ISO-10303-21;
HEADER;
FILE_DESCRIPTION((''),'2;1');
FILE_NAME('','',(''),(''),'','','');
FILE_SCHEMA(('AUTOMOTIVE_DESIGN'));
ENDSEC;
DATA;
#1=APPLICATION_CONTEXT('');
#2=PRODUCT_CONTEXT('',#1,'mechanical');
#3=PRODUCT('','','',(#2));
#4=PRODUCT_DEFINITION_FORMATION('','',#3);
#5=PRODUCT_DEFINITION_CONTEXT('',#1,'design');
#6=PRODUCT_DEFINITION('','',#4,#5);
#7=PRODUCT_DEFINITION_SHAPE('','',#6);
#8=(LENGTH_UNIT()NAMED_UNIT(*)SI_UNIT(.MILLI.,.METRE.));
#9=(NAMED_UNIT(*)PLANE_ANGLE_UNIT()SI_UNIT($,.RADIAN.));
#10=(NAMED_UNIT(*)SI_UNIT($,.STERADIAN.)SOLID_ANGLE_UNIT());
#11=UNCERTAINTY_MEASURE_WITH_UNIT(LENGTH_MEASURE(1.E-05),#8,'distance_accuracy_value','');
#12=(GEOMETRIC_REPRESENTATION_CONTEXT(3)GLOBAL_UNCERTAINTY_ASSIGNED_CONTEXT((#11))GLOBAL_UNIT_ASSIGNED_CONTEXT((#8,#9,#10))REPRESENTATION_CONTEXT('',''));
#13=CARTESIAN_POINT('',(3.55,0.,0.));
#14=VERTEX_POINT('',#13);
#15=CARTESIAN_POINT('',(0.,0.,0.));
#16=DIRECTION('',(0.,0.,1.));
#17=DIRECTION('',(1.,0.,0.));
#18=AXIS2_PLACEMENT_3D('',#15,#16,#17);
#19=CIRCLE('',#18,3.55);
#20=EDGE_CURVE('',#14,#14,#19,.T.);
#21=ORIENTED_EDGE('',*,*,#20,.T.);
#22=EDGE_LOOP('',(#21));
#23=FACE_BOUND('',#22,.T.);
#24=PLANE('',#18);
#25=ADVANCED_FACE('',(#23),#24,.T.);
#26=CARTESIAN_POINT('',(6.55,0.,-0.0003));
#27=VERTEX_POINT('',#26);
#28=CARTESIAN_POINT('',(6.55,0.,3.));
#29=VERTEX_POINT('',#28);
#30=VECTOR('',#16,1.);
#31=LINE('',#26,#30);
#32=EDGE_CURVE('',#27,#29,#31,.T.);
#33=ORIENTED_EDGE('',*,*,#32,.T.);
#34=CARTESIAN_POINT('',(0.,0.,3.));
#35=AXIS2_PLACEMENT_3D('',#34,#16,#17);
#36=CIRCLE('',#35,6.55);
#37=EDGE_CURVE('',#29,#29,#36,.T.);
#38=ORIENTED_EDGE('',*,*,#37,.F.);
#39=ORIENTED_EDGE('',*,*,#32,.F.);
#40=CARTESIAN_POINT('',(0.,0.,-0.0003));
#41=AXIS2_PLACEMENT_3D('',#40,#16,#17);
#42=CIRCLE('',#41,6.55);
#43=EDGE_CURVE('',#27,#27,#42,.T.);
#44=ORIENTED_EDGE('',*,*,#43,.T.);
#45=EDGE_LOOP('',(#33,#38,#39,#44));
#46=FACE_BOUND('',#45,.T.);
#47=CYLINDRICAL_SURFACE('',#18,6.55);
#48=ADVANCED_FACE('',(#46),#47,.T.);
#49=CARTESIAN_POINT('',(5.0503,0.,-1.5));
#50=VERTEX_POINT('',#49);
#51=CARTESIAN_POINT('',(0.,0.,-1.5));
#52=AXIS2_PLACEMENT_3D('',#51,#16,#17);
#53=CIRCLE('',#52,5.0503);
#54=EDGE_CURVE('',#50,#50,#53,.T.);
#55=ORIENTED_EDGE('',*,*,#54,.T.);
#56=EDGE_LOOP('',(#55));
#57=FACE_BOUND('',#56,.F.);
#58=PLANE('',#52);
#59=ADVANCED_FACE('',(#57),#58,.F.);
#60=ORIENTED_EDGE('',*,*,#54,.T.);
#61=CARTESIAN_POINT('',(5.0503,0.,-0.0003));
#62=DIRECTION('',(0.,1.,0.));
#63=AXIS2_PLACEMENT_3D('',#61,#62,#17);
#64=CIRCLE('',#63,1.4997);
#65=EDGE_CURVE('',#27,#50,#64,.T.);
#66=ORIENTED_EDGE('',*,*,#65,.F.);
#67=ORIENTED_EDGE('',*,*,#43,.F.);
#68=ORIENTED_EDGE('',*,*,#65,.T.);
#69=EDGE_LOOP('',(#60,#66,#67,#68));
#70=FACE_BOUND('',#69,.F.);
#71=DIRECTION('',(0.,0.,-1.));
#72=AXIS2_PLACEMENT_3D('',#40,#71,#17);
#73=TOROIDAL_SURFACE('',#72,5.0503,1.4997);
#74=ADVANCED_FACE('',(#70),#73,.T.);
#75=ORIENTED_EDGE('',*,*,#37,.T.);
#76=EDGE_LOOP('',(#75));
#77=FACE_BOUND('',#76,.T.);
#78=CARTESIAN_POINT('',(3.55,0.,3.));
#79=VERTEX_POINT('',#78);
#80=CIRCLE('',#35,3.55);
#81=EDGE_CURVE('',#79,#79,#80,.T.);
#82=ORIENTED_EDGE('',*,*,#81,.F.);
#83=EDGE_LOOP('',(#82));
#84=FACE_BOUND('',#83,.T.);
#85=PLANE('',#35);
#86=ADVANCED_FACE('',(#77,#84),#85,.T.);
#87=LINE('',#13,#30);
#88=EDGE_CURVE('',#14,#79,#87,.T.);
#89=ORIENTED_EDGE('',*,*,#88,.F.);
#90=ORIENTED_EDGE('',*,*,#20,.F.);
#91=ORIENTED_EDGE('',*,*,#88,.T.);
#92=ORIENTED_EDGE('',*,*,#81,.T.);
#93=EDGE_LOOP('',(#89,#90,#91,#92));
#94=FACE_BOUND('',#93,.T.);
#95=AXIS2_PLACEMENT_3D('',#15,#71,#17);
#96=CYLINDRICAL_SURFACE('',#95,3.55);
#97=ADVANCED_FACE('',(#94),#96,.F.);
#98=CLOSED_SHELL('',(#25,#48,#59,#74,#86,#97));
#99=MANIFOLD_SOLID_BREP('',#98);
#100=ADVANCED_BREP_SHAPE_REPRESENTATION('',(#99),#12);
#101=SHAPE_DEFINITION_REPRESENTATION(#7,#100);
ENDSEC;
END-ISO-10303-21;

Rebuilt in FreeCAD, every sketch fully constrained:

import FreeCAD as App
import Part
import Sketcher
from FreeCAD import Vector
Q = App.Units.Quantity


def edges_at(feature, points):
    """Names of the edges that pass closest to the given points."""
    edges = feature.Shape.Edges
    near = lambda p: min(range(len(edges)), key=lambda i: edges[i].distToShape(Part.Vertex(*p))[0])
    return sorted({f"Edge{near(p) + 1}" for p in points})

doc = App.newDocument("Part")
body = doc.addObject("PartDesign::Body", "Body")

# Sketch on XY plane
sketch1 = body.newObject("Sketcher::SketchObject", "Sketch")
sketch1.AttachmentSupport = (doc.getObject("XY_Plane"), [""])
sketch1.MapMode = "FlatFace"
sketch1.addGeometry(Part.Circle(Vector(0, 0, 0), Vector(0, 0, 1), 6.5), False)
sketch1.addGeometry(Part.Circle(Vector(0, 0, 0), Vector(0, 0, 1), 3.5), False)
sketch1.addConstraint(Sketcher.Constraint("Coincident", 0, 3, -1, 1))
sketch1.addConstraint(Sketcher.Constraint("Coincident", 1, 3, -1, 1))
sketch1.addConstraint(Sketcher.Constraint("Diameter", 1, Q("7.1 mm")))
sketch1.addConstraint(Sketcher.Constraint("Diameter", 0, Q("13.1 mm")))
pad1 = body.newObject("PartDesign::Pad", "Pad")
pad1.Profile = sketch1
pad1.Length = 3

# Sketch on XY plane
sketch2 = body.newObject("Sketcher::SketchObject", "Sketch001")
sketch2.AttachmentSupport = (doc.getObject("XY_Plane"), [""])
sketch2.MapMode = "FlatFace"
sketch2.addGeometry(Part.Circle(Vector(0, 0, 0), Vector(0, 0, 1), 7), False)
sketch2.addConstraint(Sketcher.Constraint("Coincident", 0, 3, -1, 1))
sketch2.addConstraint(Sketcher.Constraint("Diameter", 0, Q("13.1 mm")))
pad2 = body.newObject("PartDesign::Pad", "Pad001")
pad2.Profile = sketch2
pad2.Length = 1.5
pad2.Reversed = True
doc.recompute()

fillet = body.newObject("PartDesign::Fillet", "Fillet")
fillet.Base = (pad2, edges_at(pad2, [(-6.107, 2.369, -1.5)]))
fillet.Radius = 1.5

doc.recompute()
